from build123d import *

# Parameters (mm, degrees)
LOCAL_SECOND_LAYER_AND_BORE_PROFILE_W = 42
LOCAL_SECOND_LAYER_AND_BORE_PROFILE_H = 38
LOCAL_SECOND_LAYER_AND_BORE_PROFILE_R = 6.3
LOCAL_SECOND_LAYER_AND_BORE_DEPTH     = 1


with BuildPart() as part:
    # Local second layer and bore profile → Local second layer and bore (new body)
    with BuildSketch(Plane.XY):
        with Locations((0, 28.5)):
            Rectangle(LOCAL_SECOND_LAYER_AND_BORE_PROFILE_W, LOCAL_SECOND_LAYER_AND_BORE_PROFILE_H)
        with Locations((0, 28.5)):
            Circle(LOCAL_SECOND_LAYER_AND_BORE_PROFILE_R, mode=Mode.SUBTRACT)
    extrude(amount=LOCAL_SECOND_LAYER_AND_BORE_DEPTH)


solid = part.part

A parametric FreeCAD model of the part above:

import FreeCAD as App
import Part
import Sketcher

doc = App.newDocument("Part")
body = doc.addObject("PartDesign::Body", "Body")

sketch1 = body.newObject("Sketcher::SketchObject", "Sketch")
sketch1.AttachmentSupport = (doc.getObject("XY_Plane"), [""])
sketch1.MapMode = "FlatFace"
sketch1.addGeometry([
    Part.LineSegment(App.Vector(-21, 48, 0), App.Vector(-21, 10, 0)),
    Part.LineSegment(App.Vector(-21, 10, 0), App.Vector(21, 10, 0)),
    Part.LineSegment(App.Vector(21, 10, 0), App.Vector(21, 48, 0)),
    Part.LineSegment(App.Vector(21, 48, 0), App.Vector(-21, 48, 0)),
    Part.Circle(App.Vector(0, 28, 0), App.Vector(0, 0, 1), 6),
], False)
sketch1.addConstraint([
    Sketcher.Constraint("Coincident", 0, 2, 1, 1),
    Sketcher.Constraint("Coincident", 1, 2, 2, 1),
    Sketcher.Constraint("Coincident", 2, 2, 3, 1),
    Sketcher.Constraint("Coincident", 3, 2, 0, 1),
    Sketcher.Constraint("Vertical", 0),
    Sketcher.Constraint("Horizontal", 1),
    Sketcher.Constraint("Vertical", 2),
    Sketcher.Constraint("Horizontal", 3),
    Sketcher.Constraint("PointOnObject", 4, 3, -2),
    Sketcher.Constraint("Diameter", 4, 12.6),
    Sketcher.Constraint("DistanceX", 1, 1, 1, 2, 42.0),
    Sketcher.Constraint("DistanceY", 0, 2, 0, 1, 38.0),
    Sketcher.Constraint("DistanceX", 0, 2, -1, 1, 21.0),
    Sketcher.Constraint("DistanceY", 0, 2, 4, 3, 19.0),
    Sketcher.Constraint("DistanceY", -1, 1, 4, 3, 28.5),
])
pad1 = body.newObject("PartDesign::Pad", "Pad")
pad1.Profile = sketch1
pad1.Length = 1

doc.recompute()
